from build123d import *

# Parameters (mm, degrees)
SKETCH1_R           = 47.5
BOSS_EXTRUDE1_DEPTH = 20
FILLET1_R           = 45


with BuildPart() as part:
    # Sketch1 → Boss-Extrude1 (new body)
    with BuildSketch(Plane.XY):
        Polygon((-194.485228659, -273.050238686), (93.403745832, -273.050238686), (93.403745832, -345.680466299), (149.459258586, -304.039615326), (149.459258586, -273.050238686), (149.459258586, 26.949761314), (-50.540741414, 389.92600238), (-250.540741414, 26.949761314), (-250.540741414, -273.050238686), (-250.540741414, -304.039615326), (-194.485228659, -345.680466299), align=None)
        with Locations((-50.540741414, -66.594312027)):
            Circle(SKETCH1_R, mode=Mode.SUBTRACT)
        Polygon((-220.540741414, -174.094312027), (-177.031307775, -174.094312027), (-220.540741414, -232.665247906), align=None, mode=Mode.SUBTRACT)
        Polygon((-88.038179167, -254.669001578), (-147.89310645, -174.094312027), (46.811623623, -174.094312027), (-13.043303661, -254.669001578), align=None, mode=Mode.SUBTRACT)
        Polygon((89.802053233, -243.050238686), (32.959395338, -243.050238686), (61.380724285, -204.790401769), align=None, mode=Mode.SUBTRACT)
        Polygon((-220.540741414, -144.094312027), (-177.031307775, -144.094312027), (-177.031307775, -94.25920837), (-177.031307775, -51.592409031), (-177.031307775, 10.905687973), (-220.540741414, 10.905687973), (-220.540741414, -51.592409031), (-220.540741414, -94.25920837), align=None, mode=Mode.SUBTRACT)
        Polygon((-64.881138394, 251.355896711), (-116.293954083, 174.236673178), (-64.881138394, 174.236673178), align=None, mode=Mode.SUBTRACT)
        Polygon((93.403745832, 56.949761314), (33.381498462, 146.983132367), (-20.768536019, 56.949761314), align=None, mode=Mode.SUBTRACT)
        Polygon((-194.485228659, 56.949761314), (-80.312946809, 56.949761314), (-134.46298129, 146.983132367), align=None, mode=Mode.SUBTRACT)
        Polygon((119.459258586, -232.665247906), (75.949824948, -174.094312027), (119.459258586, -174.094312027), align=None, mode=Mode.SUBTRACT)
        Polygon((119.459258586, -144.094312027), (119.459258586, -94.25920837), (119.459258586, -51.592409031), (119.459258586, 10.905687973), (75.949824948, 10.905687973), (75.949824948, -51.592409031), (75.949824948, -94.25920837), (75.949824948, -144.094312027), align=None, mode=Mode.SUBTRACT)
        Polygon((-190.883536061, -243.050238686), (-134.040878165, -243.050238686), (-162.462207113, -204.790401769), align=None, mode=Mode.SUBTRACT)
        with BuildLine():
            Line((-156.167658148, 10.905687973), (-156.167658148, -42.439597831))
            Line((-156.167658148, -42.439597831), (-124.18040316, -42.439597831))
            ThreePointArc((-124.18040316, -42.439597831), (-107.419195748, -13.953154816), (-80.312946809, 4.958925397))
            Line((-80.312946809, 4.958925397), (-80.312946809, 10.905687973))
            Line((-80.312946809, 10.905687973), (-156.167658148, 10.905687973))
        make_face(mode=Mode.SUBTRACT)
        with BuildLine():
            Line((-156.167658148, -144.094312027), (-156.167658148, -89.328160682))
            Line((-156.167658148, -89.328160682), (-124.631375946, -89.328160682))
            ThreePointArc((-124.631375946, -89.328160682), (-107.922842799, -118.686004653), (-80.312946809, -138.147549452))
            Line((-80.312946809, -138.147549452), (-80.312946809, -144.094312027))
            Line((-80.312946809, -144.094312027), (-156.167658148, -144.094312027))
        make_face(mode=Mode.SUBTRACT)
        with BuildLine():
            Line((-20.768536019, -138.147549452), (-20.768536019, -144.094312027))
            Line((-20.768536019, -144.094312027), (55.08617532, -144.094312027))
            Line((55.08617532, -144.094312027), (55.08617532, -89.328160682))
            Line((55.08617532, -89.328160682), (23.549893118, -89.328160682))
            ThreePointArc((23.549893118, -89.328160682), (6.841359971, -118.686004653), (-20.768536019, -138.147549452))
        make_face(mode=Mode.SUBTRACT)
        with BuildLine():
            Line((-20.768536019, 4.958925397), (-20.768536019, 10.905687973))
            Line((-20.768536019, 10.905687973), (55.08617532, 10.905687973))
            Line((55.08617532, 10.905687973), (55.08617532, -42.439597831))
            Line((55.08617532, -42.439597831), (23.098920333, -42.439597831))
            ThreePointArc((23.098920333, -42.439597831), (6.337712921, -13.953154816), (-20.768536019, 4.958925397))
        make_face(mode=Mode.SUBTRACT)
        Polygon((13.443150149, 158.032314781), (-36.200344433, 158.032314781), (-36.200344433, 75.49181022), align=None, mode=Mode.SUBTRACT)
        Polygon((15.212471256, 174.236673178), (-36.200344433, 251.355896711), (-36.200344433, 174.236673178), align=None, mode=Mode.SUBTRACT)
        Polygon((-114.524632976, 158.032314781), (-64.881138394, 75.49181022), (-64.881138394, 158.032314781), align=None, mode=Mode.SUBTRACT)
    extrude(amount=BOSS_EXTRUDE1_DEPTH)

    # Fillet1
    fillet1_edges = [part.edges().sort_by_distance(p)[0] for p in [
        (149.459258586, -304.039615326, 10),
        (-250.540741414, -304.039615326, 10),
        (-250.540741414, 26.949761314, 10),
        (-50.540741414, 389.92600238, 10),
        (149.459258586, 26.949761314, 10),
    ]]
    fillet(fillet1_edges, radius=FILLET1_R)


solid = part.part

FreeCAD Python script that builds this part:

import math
import FreeCAD as App
import Part
import Sketcher
Q = App.Units.Quantity


def edges_at(feature, points):
    """Names of the edges that pass closest to the given points."""
    edges = feature.Shape.Edges
    near = lambda p: min(range(len(edges)), key=lambda i: edges[i].distToShape(Part.Vertex(*p))[0])
    return sorted({f"Edge{near(p) + 1}" for p in points})

doc = App.newDocument("Part")
body = doc.addObject("PartDesign::Body", "Body")

# Sketch on XY plane
sketch1 = body.newObject("Sketcher::SketchObject", "Sketch")
sketch1.AttachmentSupport = (doc.getObject("XY_Plane"), [""])
sketch1.MapMode = "FlatFace"
sketch1.addGeometry([
    Part.LineSegment(App.Vector(-194, -273, 0), App.Vector(93, -273, 0)),  # 0
    Part.LineSegment(App.Vector(93, -273, 0), App.Vector(93, -346, 0)),  # 1
    Part.LineSegment(App.Vector(93, -346, 0), App.Vector(149, -304, 0)),  # 2
    Part.LineSegment(App.Vector(149, -304, 0), App.Vector(149, 27, 0)),  # 3
    Part.LineSegment(App.Vector(149, 27, 0), App.Vector(-51, 390, 0)),  # 4
    Part.LineSegment(App.Vector(-51, 390, 0), App.Vector(-251, 27, 0)),  # 5
    Part.LineSegment(App.Vector(-251, 27, 0), App.Vector(-251, -304, 0)),  # 6
    Part.LineSegment(App.Vector(-251, -304, 0), App.Vector(-194, -346, 0)),  # 7
    Part.LineSegment(App.Vector(-194, -346, 0), App.Vector(-194, -273, 0)),  # 8
    Part.LineSegment(App.Vector(-221, -233, 0), App.Vector(-221, -174, 0)),  # 9
    Part.LineSegment(App.Vector(-221, -174, 0), App.Vector(-177, -174, 0)),  # 10
    Part.LineSegment(App.Vector(-177, -174, 0), App.Vector(-221, -233, 0)),  # 11
    Part.LineSegment(App.Vector(-134, -243, 0), App.Vector(-191, -243, 0)),  # 12
    Part.LineSegment(App.Vector(-191, -243, 0), App.Vector(-162, -205, 0)),  # 13
    Part.LineSegment(App.Vector(-162, -205, 0), App.Vector(-134, -243, 0)),  # 14
    Part.LineSegment(App.Vector(-177, -144, 0), App.Vector(-221, -144, 0)),  # 15
    Part.LineSegment(App.Vector(-221, -144, 0), App.Vector(-221, 11, 0)),  # 16
    Part.LineSegment(App.Vector(-221, 11, 0), App.Vector(-177, 11, 0)),  # 17
    Part.LineSegment(App.Vector(-177, 11, 0), App.Vector(-177, -144, 0)),  # 18
    Part.LineSegment(App.Vector(-80, -144, 0), App.Vector(-156, -144, 0)),  # 19
    Part.LineSegment(App.Vector(-156, -144, 0), App.Vector(-156, -89, 0)),  # 20
    Part.LineSegment(App.Vector(-156, -89, 0), App.Vector(-125, -89, 0)),  # 21
    Part.ArcOfCircle(Part.Circle(App.Vector(-51, -67, 0), App.Vector(0, 0, 1), 78), math.radians(-163), math.radians(-113)),  # 22
    Part.LineSegment(App.Vector(-80, -138, 0), App.Vector(-80, -144, 0)),  # 23
    Part.LineSegment(App.Vector(-156, -42, 0), App.Vector(-156, 11, 0)),  # 24
    Part.LineSegment(App.Vector(-156, 11, 0), App.Vector(-80, 11, 0)),  # 25
    Part.LineSegment(App.Vector(-80, 11, 0), App.Vector(-80, 5, 0)),  # 26
    Part.ArcOfCircle(Part.Circle(App.Vector(-51, -67, 0), App.Vector(0, 0, 1), 78), math.radians(113), math.radians(162)),  # 27
    Part.LineSegment(App.Vector(-124, -42, 0), App.Vector(-156, -42, 0)),  # 28
    Part.LineSegment(App.Vector(-13, -255, 0), App.Vector(-88, -255, 0)),  # 29
    Part.LineSegment(App.Vector(-88, -255, 0), App.Vector(-148, -174, 0)),  # 30
    Part.LineSegment(App.Vector(-148, -174, 0), App.Vector(47, -174, 0)),  # 31
    Part.LineSegment(App.Vector(47, -174, 0), App.Vector(-13, -255, 0)),  # 32
    Part.LineSegment(App.Vector(61, -205, 0), App.Vector(90, -243, 0)),  # 33
    Part.LineSegment(App.Vector(90, -243, 0), App.Vector(33, -243, 0)),  # 34
    Part.LineSegment(App.Vector(33, -243, 0), App.Vector(61, -205, 0)),  # 35
    Part.LineSegment(App.Vector(119, -174, 0), App.Vector(119, -233, 0)),  # 36
    Part.LineSegment(App.Vector(119, -233, 0), App.Vector(76, -174, 0)),  # 37
    Part.LineSegment(App.Vector(76, -174, 0), App.Vector(119, -174, 0)),  # 38
    Part.Circle(App.Vector(-51, -67, 0), App.Vector(0, 0, 1), 48),  # 39
    Part.LineSegment(App.Vector(-21, -144, 0), App.Vector(-21, -138, 0)),  # 40
    Part.ArcOfCircle(Part.Circle(App.Vector(-51, -67, 0), App.Vector(0, 0, 1), 78), math.radians(-67), math.radians(-17)),  # 41
    Part.LineSegment(App.Vector(24, -89, 0), App.Vector(55, -89, 0)),  # 42
    Part.LineSegment(App.Vector(55, -89, 0), App.Vector(55, -144, 0)),  # 43
    Part.LineSegment(App.Vector(55, -144, 0), App.Vector(-21, -144, 0)),  # 44
    Part.ArcOfCircle(Part.Circle(App.Vector(-51, -67, 0), App.Vector(0, 0, 1), 77), math.radians(18), math.radians(67)),  # 45
    Part.LineSegment(App.Vector(-21, 5, 0), App.Vector(-21, 11, 0)),  # 46
    Part.LineSegment(App.Vector(-21, 11, 0), App.Vector(55, 11, 0)),  # 47
    Part.LineSegment(App.Vector(55, 11, 0), App.Vector(55, -42, 0)),  # 48
    Part.LineSegment(App.Vector(55, -42, 0), App.Vector(23, -42, 0)),  # 49
    Part.LineSegment(App.Vector(119, 11, 0), App.Vector(119, -144, 0)),  # 50
    Part.LineSegment(App.Vector(119, -144, 0), App.Vector(76, -144, 0)),  # 51
    Part.LineSegment(App.Vector(76, -144, 0), App.Vector(76, 11, 0)),  # 52
    Part.LineSegment(App.Vector(76, 11, 0), App.Vector(119, 11, 0)),  # 53
    Part.LineSegment(App.Vector(-80, 57, 0), App.Vector(-194, 57, 0)),  # 54
    Part.LineSegment(App.Vector(-194, 57, 0), App.Vector(-134, 147, 0)),  # 55
    Part.LineSegment(App.Vector(-134, 147, 0), App.Vector(-80, 57, 0)),  # 56
    Part.LineSegment(App.Vector(-65, 75, 0), App.Vector(-115, 158, 0)),  # 57
    Part.LineSegment(App.Vector(-115, 158, 0), App.Vector(-65, 158, 0)),  # 58
    Part.LineSegment(App.Vector(-65, 158, 0), App.Vector(-65, 75, 0)),  # 59
    Part.LineSegment(App.Vector(-116, 174, 0), App.Vector(-65, 251, 0)),  # 60
    Part.LineSegment(App.Vector(-65, 251, 0), App.Vector(-65, 174, 0)),  # 61
    Part.LineSegment(App.Vector(-65, 174, 0), App.Vector(-116, 174, 0)),  # 62
    Part.LineSegment(App.Vector(-36, 158, 0), App.Vector(13, 158, 0)),  # 63
    Part.LineSegment(App.Vector(13, 158, 0), App.Vector(-36, 75, 0)),  # 64
    Part.LineSegment(App.Vector(-36, 75, 0), App.Vector(-36, 158, 0)),  # 65
    Part.LineSegment(App.Vector(33, 147, 0), App.Vector(93, 57, 0)),  # 66
    Part.LineSegment(App.Vector(93, 57, 0), App.Vector(-21, 57, 0)),  # 67
    Part.LineSegment(App.Vector(-21, 57, 0), App.Vector(33, 147, 0)),  # 68
    Part.LineSegment(App.Vector(-36, 251, 0), App.Vector(15, 174, 0)),  # 69
    Part.LineSegment(App.Vector(15, 174, 0), App.Vector(-36, 174, 0)),  # 70
    Part.LineSegment(App.Vector(-36, 174, 0), App.Vector(-36, 251, 0)),  # 71
], False)
sketch1.addConstraint([
    Sketcher.Constraint("Coincident", 0, 2, 1, 1),
    Sketcher.Constraint("Coincident", 1, 2, 2, 1),
    Sketcher.Constraint("Coincident", 2, 2, 3, 1),
    Sketcher.Constraint("Coincident", 3, 2, 4, 1),
    Sketcher.Constraint("Coincident", 4, 2, 5, 1),
    Sketcher.Constraint("Coincident", 5, 2, 6, 1),
    Sketcher.Constraint("Coincident", 6, 2, 7, 1),
    Sketcher.Constraint("Coincident", 7, 2, 8, 1),
    Sketcher.Constraint("Coincident", 8, 2, 0, 1),
    Sketcher.Constraint("Coincident", 9, 2, 10, 1),
    Sketcher.Constraint("Coincident", 10, 2, 11, 1),
    Sketcher.Constraint("Coincident", 11, 2, 9, 1),
    Sketcher.Constraint("Coincident", 12, 2, 13, 1),
    Sketcher.Constraint("Coincident", 13, 2, 14, 1),
    Sketcher.Constraint("Coincident", 14, 2, 12, 1),
    Sketcher.Constraint("Coincident", 15, 2, 16, 1),
    Sketcher.Constraint("Coincident", 16, 2, 17, 1),
    Sketcher.Constraint("Coincident", 17, 2, 18, 1),
    Sketcher.Constraint("Coincident", 18, 2, 15, 1),
    Sketcher.Constraint("Coincident", 19, 2, 20, 1),
    Sketcher.Constraint("Coincident", 20, 2, 21, 1),
    Sketcher.Constraint("Coincident", 21, 2, 22, 1),
    Sketcher.Constraint("Coincident", 22, 2, 23, 1),
    Sketcher.Constraint("Coincident", 23, 2, 19, 1),
    Sketcher.Constraint("Coincident", 24, 2, 25, 1),
    Sketcher.Constraint("Coincident", 25, 2, 26, 1),
    Sketcher.Constraint("Coincident", 26, 2, 27, 1),
    Sketcher.Constraint("Coincident", 27, 2, 28, 1),
    Sketcher.Constraint("Coincident", 28, 2, 24, 1),
    Sketcher.Constraint("Coincident", 29, 2, 30, 1),
    Sketcher.Constraint("Coincident", 30, 2, 31, 1),
    Sketcher.Constraint("Coincident", 31, 2, 32, 1),
    Sketcher.Constraint("Coincident", 32, 2, 29, 1),
    Sketcher.Constraint("Coincident", 33, 2, 34, 1),
    Sketcher.Constraint("Coincident", 34, 2, 35, 1),
    Sketcher.Constraint("Coincident", 35, 2, 33, 1),
    Sketcher.Constraint("Coincident", 36, 2, 37, 1),
    Sketcher.Constraint("Coincident", 37, 2, 38, 1),
    Sketcher.Constraint("Coincident", 38, 2, 36, 1),
    Sketcher.Constraint("Coincident", 40, 2, 41, 1),
    Sketcher.Constraint("Coincident", 41, 2, 42, 1),
    Sketcher.Constraint("Coincident", 42, 2, 43, 1),
    Sketcher.Constraint("Coincident", 43, 2, 44, 1),
    Sketcher.Constraint("Coincident", 44, 2, 40, 1),
    Sketcher.Constraint("Coincident", 45, 2, 46, 1),
    Sketcher.Constraint("Coincident", 46, 2, 47, 1),
    Sketcher.Constraint("Coincident", 47, 2, 48, 1),
    Sketcher.Constraint("Coincident", 48, 2, 49, 1),
    Sketcher.Constraint("Coincident", 49, 2, 45, 1),
    Sketcher.Constraint("Coincident", 50, 2, 51, 1),
    Sketcher.Constraint("Coincident", 51, 2, 52, 1),
    Sketcher.Constraint("Coincident", 52, 2, 53, 1),
    Sketcher.Constraint("Coincident", 53, 2, 50, 1),
    Sketcher.Constraint("Coincident", 54, 2, 55, 1),
    Sketcher.Constraint("Coincident", 55, 2, 56, 1),
    Sketcher.Constraint("Coincident", 56, 2, 54, 1),
    Sketcher.Constraint("Coincident", 57, 2, 58, 1),
    Sketcher.Constraint("Coincident", 58, 2, 59, 1),
    Sketcher.Constraint("Coincident", 59, 2, 57, 1),
    Sketcher.Constraint("Coincident", 60, 2, 61, 1),
    Sketcher.Constraint("Coincident", 61, 2, 62, 1),
    Sketcher.Constraint("Coincident", 62, 2, 60, 1),
    Sketcher.Constraint("Coincident", 63, 2, 64, 1),
    Sketcher.Constraint("Coincident", 64, 2, 65, 1),
    Sketcher.Constraint("Coincident", 65, 2, 63, 1),
    Sketcher.Constraint("Coincident", 66, 2, 67, 1),
    Sketcher.Constraint("Coincident", 67, 2, 68, 1),
    Sketcher.Constraint("Coincident", 68, 2, 66, 1),
    Sketcher.Constraint("Coincident", 69, 2, 70, 1),
    Sketcher.Constraint("Coincident", 70, 2, 71, 1),
    Sketcher.Constraint("Coincident", 71, 2, 69, 1),
    Sketcher.Constraint("Horizontal", 0),
    Sketcher.Constraint("Vertical", 1),
    Sketcher.Constraint("Vertical", 3),
    Sketcher.Constraint("Vertical", 6),
    Sketcher.Constraint("Vertical", 8),
    Sketcher.Constraint("Vertical", 9),
    Sketcher.Constraint("Horizontal", 10),
    Sketcher.Constraint("Horizontal", 12),
    Sketcher.Constraint("Horizontal", 15),
    Sketcher.Constraint("Vertical", 16),
    Sketcher.Constraint("Horizontal", 17),
    Sketcher.Constraint("Vertical", 18),
    Sketcher.Constraint("Horizontal", 19),
    Sketcher.Constraint("Vertical", 20),
    Sketcher.Constraint("Horizontal", 21),
    Sketcher.Constraint("Vertical", 23),
    Sketcher.Constraint("Vertical", 24),
    Sketcher.Constraint("Horizontal", 25),
    Sketcher.Constraint("Vertical", 26),
    Sketcher.Constraint("Horizontal", 28),
    Sketcher.Constraint("Horizontal", 29),
    Sketcher.Constraint("Horizontal", 31),
    Sketcher.Constraint("Horizontal", 34),
    Sketcher.Constraint("Vertical", 36),
    Sketcher.Constraint("Horizontal", 38),
    Sketcher.Constraint("Vertical", 40),
    Sketcher.Constraint("Horizontal", 42),
    Sketcher.Constraint("Vertical", 43),
    Sketcher.Constraint("Horizontal", 44),
    Sketcher.Constraint("Vertical", 46),
    Sketcher.Constraint("Horizontal", 47),
    Sketcher.Constraint("Vertical", 48),
    Sketcher.Constraint("Horizontal", 49),
    Sketcher.Constraint("Vertical", 50),
    Sketcher.Constraint("Horizontal", 51),
    Sketcher.Constraint("Vertical", 52),
    Sketcher.Constraint("Horizontal", 53),
    Sketcher.Constraint("Horizontal", 54),
    Sketcher.Constraint("Horizontal", 58),
    Sketcher.Constraint("Vertical", 59),
    Sketcher.Constraint("Vertical", 61),
    Sketcher.Constraint("Horizontal", 62),
    Sketcher.Constraint("Horizontal", 63),
    Sketcher.Constraint("Vertical", 65),
    Sketcher.Constraint("Horizontal", 67),
    Sketcher.Constraint("Horizontal", 70),
    Sketcher.Constraint("Vertical", 71),
    Sketcher.Constraint("Coincident", 27, 3, 22, 3),
    Sketcher.Constraint("Coincident", 39, 3, 22, 3),
    Sketcher.Constraint("Coincident", 41, 3, 22, 3),
    Sketcher.Constraint("Coincident", 45, 3, 22, 3),
    Sketcher.Constraint("Equal", 22, 27),
    Sketcher.Constraint("Equal", 27, 41),
    Sketcher.Constraint("Equal", 41, 45),
    Sketcher.Constraint("Perpendicular", 7, 11),
    Sketcher.Constraint("Parallel", 11, 13),
    Sketcher.Constraint("Perpendicular", 2, 14),
    Sketcher.Constraint("Parallel", 14, 30),
    Sketcher.Constraint("Parallel", 13, 32),
    Sketcher.Constraint("Parallel", 30, 33),
    Sketcher.Constraint("Parallel", 32, 35),
    Sketcher.Constraint("Parallel", 33, 37),
    Sketcher.Constraint("Parallel", 56, 57),
    Sketcher.Constraint("Parallel", 55, 60),
    Sketcher.Constraint("Parallel", 64, 68),
    Sketcher.Constraint("Parallel", 66, 69),
    Sketcher.Constraint("Horizontal", 3, 2, 5, 2),
    Sketcher.Constraint("Horizontal", 2, 2, 6, 2),
    Sketcher.Constraint("Horizontal", 1, 2, 7, 2),
    Sketcher.Constraint("Horizontal", 18, 2, 19, 2),
    Sketcher.Constraint("Horizontal", 17, 2, 24, 2),
    Sketcher.Constraint("Horizontal", 10, 2, 30, 2),
    Sketcher.Constraint("Horizontal", 14, 2, 33, 2),
    Sketcher.Constraint("Horizontal", 13, 2, 35, 2),
    Sketcher.Constraint("Horizontal", 11, 2, 36, 2),
    Sketcher.Constraint("Horizontal", 31, 2, 37, 2),
    Sketcher.Constraint("Horizontal", 22, 2, 40, 2),
    Sketcher.Constraint("Horizontal", 21, 2, 41, 2),
    Sketcher.Constraint("Horizontal", 23, 2, 43, 2),
    Sketcher.Constraint("Horizontal", 26, 2, 45, 2),
    Sketcher.Constraint("Horizontal", 25, 2, 46, 2),
    Sketcher.Constraint("Horizontal", 28, 2, 48, 2),
    Sketcher.Constraint("Horizontal", 44, 2, 50, 2),
    Sketcher.Constraint("Horizontal", 47, 2, 52, 2),
    Sketcher.Constraint("Horizontal", 58, 2, 63, 2),
    Sketcher.Constraint("Horizontal", 59, 2, 64, 2),
    Sketcher.Constraint("Horizontal", 56, 2, 66, 2),
    Sketcher.Constraint("Horizontal", 55, 2, 68, 2),
    Sketcher.Constraint("Horizontal", 62, 2, 69, 2),
    Sketcher.Constraint("Horizontal", 60, 2, 71, 2),
    Sketcher.Constraint("Vertical", 45, 3, 4, 2),
    Sketcher.Constraint("Vertical", 11, 2, 15, 2),
    Sketcher.Constraint("Vertical", 10, 2, 17, 2),
    Sketcher.Constraint("Vertical", 20, 2, 24, 2),
    Sketcher.Constraint("Vertical", 23, 2, 25, 2),
    Sketcher.Constraint("Vertical", 43, 2, 47, 2),
    Sketcher.Constraint("Vertical", 38, 2, 50, 2),
    Sketcher.Constraint("Vertical", 37, 2, 51, 2),
    Sketcher.Constraint("Vertical", 8, 2, 54, 2),
    Sketcher.Constraint("Vertical", 26, 2, 56, 2),
    Sketcher.Constraint("Vertical", 59, 2, 60, 2),
    Sketcher.Constraint("Vertical", 1, 2, 66, 2),
    Sketcher.Constraint("Vertical", 46, 2, 67, 2),
    Sketcher.Constraint("Vertical", 65, 2, 70, 2),
    Sketcher.Constraint("Equal", 17, 38),
    Sketcher.Constraint("Equal", 21, 42),
    Sketcher.Constraint("Equal", 58, 63),
    Sketcher.Constraint("Equal", 54, 67),
    Sketcher.Constraint("Equal", 23, 26),
    Sketcher.Constraint("Diameter", 39, Q("95 mm")),
    Sketcher.Constraint("Radius", 22, Q("77.5 mm")),
    Sketcher.Constraint("DistanceY", 16, 1, 16, 2, Q("155 mm")),
    Sketcher.Constraint("Distance", 56, Q("105.063001 mm")),
    Sketcher.Constraint("DistanceY", 29, 2, -1, 1, Q("254.669002 mm")),
    Sketcher.Constraint("DistanceX", 19, 2, 19, 1, Q("75.854711 mm")),
    Sketcher.Constraint("DistanceX", 31, 1, 31, 2, Q("194.70473 mm")),
    Sketcher.Constraint("DistanceX", 54, 2, 54, 1, Q("114.172282 mm")),
    Sketcher.Constraint("DistanceY", 20, 1, 20, 2, Q("54.766151 mm")),
    Sketcher.Constraint("DistanceY", 13, 2, -1, 1, Q("204.790402 mm")),
    Sketcher.Constraint("DistanceX", -1, 1, 68, 2, Q("33.381498 mm")),
    Sketcher.Constraint("Distance", 4, Q("414.429429 mm")),
    Sketcher.Constraint("Distance", 11, Q("72.963178 mm")),
    Sketcher.Constraint("Distance", 13, Q("47.661169 mm")),
    Sketcher.Constraint("Distance", 57, Q("96.31932 mm")),
    Sketcher.Constraint("Distance", 60, Q("92.685772 mm")),
    Sketcher.Constraint("DistanceX", 0, 1, 0, 2, Q("287.888974 mm")),
    Sketcher.Constraint("DistanceX", 10, 1, 10, 2, Q("43.509434 mm")),
    Sketcher.Constraint("DistanceX", 28, 2, 28, 1, Q("31.987255 mm")),
    Sketcher.Constraint("DistanceX", 29, 2, 29, 1, Q("74.994876 mm")),
    Sketcher.Constraint("DistanceX", 58, 1, 58, 2, Q("49.643495 mm")),
    Sketcher.Constraint("DistanceY", 1, 2, 1, 1, Q("72.630228 mm")),
    Sketcher.Constraint("DistanceY", 3, 1, 3, 2, Q("330.989377 mm")),
    Sketcher.Constraint("DistanceY", 0, 2, -1, 1, Q("273.050239 mm")),
    Sketcher.Constraint("DistanceX", -1, 1, 2, 2, Q("149.459259 mm")),
    Sketcher.Constraint("DistanceX", 9, 2, -1, 1, Q("220.540741 mm")),
    Sketcher.Constraint("DistanceX", 14, 2, -1, 1, Q("134.040878 mm")),
    Sketcher.Constraint("DistanceY", 20, 2, -1, 1, Q("89.328161 mm")),
    Sketcher.Constraint("DistanceX", 29, 2, -1, 1, Q("88.038179 mm")),
    Sketcher.Constraint("DistanceX", -1, 1, 36, 2, Q("119.459259 mm")),
    Sketcher.Constraint("DistanceY", -1, 1, 54, 2, Q("56.949761 mm")),
    Sketcher.Constraint("DistanceX", 58, 2, -1, 1, Q("64.881138 mm")),
    Sketcher.Constraint("DistanceY", -1, 1, 59, 2, Q("75.49181 mm")),
    Sketcher.Constraint("DistanceX", -1, 1, 63, 2, Q("13.44315 mm")),
    Sketcher.Constraint("DistanceX", -1, 1, 33, 2, Q("89.802053 mm")),
    Sketcher.Constraint("DistanceY", -1, 1, 60, 2, Q("251.355897 mm")),
])
pad1 = body.newObject("PartDesign::Pad", "Pad")
pad1.Profile = sketch1
pad1.Length = 20
doc.recompute()

fillet = body.newObject("PartDesign::Fillet", "Fillet")
fillet.Base = (pad1, edges_at(pad1, [
    (149.459, -304.04, 10),
    (-250.541, -304.04, 10),
    (-250.541, 26.95, 10),
    (-50.541, 389.926, 10),
    (149.459, 26.95, 10),
]))
fillet.Radius = 45

doc.recompute()
